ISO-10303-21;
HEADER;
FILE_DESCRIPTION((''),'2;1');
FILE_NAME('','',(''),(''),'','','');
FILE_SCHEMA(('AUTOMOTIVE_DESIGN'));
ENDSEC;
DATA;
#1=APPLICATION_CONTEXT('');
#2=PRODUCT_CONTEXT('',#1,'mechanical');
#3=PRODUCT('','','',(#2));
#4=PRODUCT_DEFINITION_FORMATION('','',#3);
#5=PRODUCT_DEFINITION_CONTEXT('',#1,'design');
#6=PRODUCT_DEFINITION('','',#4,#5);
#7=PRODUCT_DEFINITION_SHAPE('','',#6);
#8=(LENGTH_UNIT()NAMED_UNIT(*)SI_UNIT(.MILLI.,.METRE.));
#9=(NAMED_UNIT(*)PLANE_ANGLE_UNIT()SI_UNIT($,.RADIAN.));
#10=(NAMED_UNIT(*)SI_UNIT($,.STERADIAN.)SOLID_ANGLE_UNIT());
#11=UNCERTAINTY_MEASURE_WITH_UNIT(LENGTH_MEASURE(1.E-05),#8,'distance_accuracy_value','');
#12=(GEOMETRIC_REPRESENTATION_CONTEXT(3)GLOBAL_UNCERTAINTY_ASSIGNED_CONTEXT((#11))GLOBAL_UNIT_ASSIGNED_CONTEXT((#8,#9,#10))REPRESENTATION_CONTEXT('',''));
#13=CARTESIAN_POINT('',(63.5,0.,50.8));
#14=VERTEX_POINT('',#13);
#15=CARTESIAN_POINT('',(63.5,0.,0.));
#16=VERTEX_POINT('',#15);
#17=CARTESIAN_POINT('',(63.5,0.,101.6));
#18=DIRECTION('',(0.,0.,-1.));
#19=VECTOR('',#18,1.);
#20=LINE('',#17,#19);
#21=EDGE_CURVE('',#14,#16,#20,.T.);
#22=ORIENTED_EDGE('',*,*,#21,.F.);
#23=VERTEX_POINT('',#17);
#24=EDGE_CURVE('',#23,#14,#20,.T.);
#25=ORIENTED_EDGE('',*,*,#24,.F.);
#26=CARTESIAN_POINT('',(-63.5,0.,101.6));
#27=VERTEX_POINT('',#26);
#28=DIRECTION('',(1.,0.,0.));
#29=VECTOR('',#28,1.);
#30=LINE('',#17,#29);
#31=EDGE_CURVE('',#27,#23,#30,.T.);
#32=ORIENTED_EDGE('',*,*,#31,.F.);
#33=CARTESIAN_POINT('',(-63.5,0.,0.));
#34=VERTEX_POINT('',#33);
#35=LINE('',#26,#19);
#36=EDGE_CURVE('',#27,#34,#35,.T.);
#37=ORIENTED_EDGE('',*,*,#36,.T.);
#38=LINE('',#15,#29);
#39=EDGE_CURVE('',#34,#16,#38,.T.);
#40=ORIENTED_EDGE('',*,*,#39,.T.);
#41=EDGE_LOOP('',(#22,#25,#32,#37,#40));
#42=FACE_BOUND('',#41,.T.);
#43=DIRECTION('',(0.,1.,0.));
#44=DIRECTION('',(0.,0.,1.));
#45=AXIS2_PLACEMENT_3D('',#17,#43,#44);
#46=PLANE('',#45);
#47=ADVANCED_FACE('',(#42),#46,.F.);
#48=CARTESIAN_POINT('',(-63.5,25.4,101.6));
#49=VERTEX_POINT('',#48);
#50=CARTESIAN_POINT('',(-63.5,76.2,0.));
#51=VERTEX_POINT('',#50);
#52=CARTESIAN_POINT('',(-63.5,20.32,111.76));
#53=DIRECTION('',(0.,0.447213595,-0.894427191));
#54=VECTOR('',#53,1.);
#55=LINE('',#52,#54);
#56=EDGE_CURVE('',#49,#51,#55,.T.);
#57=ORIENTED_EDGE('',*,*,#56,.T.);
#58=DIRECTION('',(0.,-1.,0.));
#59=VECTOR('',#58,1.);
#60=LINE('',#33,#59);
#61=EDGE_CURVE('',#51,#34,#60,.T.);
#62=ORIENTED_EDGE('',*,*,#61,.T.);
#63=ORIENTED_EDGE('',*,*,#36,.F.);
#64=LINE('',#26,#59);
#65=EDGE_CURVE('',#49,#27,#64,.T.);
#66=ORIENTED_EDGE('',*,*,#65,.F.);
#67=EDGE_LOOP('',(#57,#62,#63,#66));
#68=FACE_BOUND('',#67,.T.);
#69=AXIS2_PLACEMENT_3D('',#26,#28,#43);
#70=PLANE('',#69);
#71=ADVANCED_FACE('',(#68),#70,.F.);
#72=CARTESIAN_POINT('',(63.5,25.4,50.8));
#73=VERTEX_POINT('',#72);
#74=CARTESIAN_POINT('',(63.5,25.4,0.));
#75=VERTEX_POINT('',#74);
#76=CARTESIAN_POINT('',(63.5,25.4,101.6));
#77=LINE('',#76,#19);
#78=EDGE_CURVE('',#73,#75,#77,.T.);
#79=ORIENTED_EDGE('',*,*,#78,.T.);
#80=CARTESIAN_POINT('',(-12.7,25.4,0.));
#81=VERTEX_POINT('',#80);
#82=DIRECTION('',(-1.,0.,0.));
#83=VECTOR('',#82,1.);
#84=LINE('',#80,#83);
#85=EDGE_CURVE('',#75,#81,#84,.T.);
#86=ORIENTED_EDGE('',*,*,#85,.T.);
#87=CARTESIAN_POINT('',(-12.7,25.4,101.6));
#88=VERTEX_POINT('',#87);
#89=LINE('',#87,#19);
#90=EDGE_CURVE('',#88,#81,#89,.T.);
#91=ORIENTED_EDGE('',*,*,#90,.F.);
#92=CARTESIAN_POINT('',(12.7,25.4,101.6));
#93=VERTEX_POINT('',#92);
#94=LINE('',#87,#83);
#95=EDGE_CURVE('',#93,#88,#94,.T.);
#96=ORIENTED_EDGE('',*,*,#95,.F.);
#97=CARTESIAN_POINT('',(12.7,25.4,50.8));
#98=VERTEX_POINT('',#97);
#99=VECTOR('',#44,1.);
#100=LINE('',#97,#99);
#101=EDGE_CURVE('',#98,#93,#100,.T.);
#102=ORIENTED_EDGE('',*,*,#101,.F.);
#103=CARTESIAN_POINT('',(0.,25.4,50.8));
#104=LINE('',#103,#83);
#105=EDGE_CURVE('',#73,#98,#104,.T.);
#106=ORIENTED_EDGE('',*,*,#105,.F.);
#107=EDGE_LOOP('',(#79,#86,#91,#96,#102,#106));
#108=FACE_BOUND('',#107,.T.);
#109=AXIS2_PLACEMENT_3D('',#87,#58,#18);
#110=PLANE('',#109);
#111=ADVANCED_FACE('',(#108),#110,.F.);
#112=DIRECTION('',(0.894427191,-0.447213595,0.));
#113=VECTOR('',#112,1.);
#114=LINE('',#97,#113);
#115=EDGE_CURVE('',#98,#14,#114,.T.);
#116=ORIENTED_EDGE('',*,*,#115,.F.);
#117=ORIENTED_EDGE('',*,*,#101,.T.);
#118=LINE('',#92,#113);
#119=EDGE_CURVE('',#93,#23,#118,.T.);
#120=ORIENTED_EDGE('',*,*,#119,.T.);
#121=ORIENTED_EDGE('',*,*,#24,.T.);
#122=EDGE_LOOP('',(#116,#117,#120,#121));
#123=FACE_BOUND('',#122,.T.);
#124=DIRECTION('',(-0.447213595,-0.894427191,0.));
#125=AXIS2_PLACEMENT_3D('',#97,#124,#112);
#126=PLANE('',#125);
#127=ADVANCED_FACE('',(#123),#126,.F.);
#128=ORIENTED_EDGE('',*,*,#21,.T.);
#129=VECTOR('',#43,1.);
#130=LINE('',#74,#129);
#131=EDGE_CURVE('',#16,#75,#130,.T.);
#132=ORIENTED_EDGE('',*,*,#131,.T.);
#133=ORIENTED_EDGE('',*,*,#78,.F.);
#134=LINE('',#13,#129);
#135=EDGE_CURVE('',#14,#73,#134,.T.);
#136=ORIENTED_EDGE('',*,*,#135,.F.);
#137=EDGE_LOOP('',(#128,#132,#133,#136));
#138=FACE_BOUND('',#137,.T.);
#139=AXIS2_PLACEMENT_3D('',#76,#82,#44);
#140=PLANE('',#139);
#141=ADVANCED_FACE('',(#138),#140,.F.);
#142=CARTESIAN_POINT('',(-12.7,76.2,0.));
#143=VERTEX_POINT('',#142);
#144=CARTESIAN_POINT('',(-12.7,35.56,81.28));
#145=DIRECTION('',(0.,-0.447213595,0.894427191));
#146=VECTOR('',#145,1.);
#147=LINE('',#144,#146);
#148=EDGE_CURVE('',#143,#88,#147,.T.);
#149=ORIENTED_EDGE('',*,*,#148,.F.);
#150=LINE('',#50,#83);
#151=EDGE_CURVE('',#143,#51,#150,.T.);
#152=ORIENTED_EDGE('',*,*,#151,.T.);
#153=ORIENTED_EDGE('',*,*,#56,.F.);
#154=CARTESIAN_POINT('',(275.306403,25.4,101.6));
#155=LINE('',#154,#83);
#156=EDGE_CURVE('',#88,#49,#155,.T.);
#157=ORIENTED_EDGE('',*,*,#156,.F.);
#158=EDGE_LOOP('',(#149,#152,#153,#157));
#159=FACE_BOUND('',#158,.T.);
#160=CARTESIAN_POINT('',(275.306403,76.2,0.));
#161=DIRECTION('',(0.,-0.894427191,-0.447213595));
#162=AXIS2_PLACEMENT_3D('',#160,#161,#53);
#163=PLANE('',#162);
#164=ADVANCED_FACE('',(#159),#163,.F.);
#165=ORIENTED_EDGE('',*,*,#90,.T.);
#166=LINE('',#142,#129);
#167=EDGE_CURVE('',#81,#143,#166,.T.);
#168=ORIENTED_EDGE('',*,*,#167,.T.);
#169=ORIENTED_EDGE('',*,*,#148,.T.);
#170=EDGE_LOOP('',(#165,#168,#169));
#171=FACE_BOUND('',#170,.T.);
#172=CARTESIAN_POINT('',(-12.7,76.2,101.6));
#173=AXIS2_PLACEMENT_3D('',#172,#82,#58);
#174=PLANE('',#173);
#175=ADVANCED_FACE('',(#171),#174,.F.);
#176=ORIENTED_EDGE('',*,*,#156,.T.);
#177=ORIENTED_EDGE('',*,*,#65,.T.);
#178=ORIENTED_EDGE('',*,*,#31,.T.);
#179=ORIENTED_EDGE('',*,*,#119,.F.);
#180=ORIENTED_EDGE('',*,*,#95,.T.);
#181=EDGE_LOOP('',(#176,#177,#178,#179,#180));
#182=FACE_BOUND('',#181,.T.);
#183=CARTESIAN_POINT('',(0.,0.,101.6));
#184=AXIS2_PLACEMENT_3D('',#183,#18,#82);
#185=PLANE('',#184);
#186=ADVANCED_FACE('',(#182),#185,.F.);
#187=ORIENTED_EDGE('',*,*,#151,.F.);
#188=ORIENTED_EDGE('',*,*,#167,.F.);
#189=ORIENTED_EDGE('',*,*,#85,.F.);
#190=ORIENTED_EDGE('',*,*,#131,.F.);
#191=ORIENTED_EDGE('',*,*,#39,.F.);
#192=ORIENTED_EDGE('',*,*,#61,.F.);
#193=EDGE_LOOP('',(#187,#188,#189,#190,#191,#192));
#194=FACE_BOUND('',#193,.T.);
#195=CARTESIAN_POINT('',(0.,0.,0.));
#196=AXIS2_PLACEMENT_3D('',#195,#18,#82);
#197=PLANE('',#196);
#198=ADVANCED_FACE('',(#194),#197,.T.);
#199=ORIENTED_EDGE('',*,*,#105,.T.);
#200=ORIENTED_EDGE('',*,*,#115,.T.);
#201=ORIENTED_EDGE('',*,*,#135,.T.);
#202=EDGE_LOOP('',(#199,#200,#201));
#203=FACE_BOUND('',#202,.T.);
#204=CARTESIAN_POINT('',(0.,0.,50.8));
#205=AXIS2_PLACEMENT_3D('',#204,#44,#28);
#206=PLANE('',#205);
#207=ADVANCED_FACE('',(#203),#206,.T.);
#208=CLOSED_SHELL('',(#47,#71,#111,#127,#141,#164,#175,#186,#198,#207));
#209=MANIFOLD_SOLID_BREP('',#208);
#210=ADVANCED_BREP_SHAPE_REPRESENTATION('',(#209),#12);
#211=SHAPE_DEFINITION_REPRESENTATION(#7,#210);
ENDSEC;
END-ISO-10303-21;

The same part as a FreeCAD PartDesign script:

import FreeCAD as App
import Part
import Sketcher
Q = App.Units.Quantity


def add_polygon(sketch, points):
    """Adds a closed chain of lines whose ends are joined by coincident constraints."""
    first, n = sketch.GeometryCount, len(points)
    for a, b in zip(points, points[1:] + points[:1]):
        sketch.addGeometry(Part.LineSegment(App.Vector(*a, 0), App.Vector(*b, 0)), False)
    for i in range(n):
        sketch.addConstraint(Sketcher.Constraint("Coincident", first + i, 2, first + (i + 1) % n, 1))

doc = App.newDocument("Part")
body = doc.addObject("PartDesign::Body", "Body")

sketch1 = doc.addObject("Sketcher::SketchObject", "Sketch")
body.addObject(sketch1)
sketch1.AttachmentSupport = (doc.XY_Plane, [""])
sketch1.MapMode = "FlatFace"
add_polygon(sketch1, [(-12.7, 76.2), (-63.5, 76.2), (-63.5, 0), (63.5, 0), (63.5, 25.4), (-12.7, 25.4)])
sketch1.addConstraint([
    Sketcher.Constraint("Horizontal", 0),
    Sketcher.Constraint("Vertical", 1),
    Sketcher.Constraint("Horizontal", 2),
    Sketcher.Constraint("Vertical", 3),
    Sketcher.Constraint("Horizontal", 4),
    Sketcher.Constraint("Vertical", 5),
    Sketcher.Constraint("Symmetric", 1, 2, 2, 2, -1, 1),
    Sketcher.Constraint("Equal", 4, 1),
    Sketcher.Constraint("Equal", 0, 5),
    Sketcher.Constraint("DistanceX", 0, 2, 0, 1, Q("2 in")),
    Sketcher.Constraint("DistanceX", 2, 1, 2, 2, Q("5 in")),
])
pad1 = doc.addObject("PartDesign::Pad", "Pad")
body.addObject(pad1)
pad1.Profile = sketch1
pad1.Length = Q("4 in")

sketch2 = doc.addObject("Sketcher::SketchObject", "Sketch001")
body.addObject(sketch2)
sketch2.AttachmentSupport = (doc.YZ_Plane, [""])
sketch2.MapMode = "FlatFace"
sketch2.AttachmentOffset = App.Placement(App.Vector(0, 0, -0.5 * 25.4), App.Rotation())
add_polygon(sketch2, [(-92.664389, 337.728778), (194.264389, -236.128778), (666.521946, 0), (379.593168, 573.857557)])
sketch2.addConstraint([
    Sketcher.Constraint("PointOnObject", 1, 2, -1),
    Sketcher.Constraint("Perpendicular", 0, 1),
    Sketcher.Constraint("Perpendicular", 1, 2),
    Sketcher.Constraint("Perpendicular", 2, 3),
    Sketcher.Constraint("Distance", 1, Q("528 mm")),
    Sketcher.Constraint("DistanceX", -1, 1, 0, 2, Q("194.264389 mm")),
    Sketcher.Constraint("DistanceY", 0, 2, -1, 1, Q("236.128778 mm")),
    Sketcher.Constraint("DistanceX", 3, 2, -1, 1, Q("92.664389 mm")),
])
pocket1 = doc.addObject("PartDesign::Pocket", "Pocket")
body.addObject(pocket1)
pocket1.Profile = sketch2
pocket1.Type = "ThroughAll"
pocket1.Midplane = True

sketch3 = doc.addObject("Sketcher::SketchObject", "Sketch002")
body.addObject(sketch3)
sketch3.AttachmentSupport = (doc.XY_Plane, [""])
sketch3.MapMode = "FlatFace"
sketch3.AttachmentOffset = App.Placement(App.Vector(0, 0, 4 * 25.4), App.Rotation())
add_polygon(sketch3, [(63.5, 25.4), (12.7, 25.4), (63.5, 0)])
sketch3.addConstraint([
    Sketcher.Constraint("Horizontal", 0),
    Sketcher.Constraint("Vertical", 2),
    Sketcher.Constraint("PointOnObject", 1, 2, -1),
    Sketcher.Constraint("DistanceX", 0, 2, 0, 1, Q("2 in")),
    Sketcher.Constraint("DistanceY", 2, 1, 2, 2, Q("1 in")),
    Sketcher.Constraint("DistanceX", -1, 1, 0, 2, Q("0.5 in")),
])
pocket2 = doc.addObject("PartDesign::Pocket", "Pocket001")
body.addObject(pocket2)
pocket2.Profile = sketch3
pocket2.Length = Q("2 in")

doc.recompute()
